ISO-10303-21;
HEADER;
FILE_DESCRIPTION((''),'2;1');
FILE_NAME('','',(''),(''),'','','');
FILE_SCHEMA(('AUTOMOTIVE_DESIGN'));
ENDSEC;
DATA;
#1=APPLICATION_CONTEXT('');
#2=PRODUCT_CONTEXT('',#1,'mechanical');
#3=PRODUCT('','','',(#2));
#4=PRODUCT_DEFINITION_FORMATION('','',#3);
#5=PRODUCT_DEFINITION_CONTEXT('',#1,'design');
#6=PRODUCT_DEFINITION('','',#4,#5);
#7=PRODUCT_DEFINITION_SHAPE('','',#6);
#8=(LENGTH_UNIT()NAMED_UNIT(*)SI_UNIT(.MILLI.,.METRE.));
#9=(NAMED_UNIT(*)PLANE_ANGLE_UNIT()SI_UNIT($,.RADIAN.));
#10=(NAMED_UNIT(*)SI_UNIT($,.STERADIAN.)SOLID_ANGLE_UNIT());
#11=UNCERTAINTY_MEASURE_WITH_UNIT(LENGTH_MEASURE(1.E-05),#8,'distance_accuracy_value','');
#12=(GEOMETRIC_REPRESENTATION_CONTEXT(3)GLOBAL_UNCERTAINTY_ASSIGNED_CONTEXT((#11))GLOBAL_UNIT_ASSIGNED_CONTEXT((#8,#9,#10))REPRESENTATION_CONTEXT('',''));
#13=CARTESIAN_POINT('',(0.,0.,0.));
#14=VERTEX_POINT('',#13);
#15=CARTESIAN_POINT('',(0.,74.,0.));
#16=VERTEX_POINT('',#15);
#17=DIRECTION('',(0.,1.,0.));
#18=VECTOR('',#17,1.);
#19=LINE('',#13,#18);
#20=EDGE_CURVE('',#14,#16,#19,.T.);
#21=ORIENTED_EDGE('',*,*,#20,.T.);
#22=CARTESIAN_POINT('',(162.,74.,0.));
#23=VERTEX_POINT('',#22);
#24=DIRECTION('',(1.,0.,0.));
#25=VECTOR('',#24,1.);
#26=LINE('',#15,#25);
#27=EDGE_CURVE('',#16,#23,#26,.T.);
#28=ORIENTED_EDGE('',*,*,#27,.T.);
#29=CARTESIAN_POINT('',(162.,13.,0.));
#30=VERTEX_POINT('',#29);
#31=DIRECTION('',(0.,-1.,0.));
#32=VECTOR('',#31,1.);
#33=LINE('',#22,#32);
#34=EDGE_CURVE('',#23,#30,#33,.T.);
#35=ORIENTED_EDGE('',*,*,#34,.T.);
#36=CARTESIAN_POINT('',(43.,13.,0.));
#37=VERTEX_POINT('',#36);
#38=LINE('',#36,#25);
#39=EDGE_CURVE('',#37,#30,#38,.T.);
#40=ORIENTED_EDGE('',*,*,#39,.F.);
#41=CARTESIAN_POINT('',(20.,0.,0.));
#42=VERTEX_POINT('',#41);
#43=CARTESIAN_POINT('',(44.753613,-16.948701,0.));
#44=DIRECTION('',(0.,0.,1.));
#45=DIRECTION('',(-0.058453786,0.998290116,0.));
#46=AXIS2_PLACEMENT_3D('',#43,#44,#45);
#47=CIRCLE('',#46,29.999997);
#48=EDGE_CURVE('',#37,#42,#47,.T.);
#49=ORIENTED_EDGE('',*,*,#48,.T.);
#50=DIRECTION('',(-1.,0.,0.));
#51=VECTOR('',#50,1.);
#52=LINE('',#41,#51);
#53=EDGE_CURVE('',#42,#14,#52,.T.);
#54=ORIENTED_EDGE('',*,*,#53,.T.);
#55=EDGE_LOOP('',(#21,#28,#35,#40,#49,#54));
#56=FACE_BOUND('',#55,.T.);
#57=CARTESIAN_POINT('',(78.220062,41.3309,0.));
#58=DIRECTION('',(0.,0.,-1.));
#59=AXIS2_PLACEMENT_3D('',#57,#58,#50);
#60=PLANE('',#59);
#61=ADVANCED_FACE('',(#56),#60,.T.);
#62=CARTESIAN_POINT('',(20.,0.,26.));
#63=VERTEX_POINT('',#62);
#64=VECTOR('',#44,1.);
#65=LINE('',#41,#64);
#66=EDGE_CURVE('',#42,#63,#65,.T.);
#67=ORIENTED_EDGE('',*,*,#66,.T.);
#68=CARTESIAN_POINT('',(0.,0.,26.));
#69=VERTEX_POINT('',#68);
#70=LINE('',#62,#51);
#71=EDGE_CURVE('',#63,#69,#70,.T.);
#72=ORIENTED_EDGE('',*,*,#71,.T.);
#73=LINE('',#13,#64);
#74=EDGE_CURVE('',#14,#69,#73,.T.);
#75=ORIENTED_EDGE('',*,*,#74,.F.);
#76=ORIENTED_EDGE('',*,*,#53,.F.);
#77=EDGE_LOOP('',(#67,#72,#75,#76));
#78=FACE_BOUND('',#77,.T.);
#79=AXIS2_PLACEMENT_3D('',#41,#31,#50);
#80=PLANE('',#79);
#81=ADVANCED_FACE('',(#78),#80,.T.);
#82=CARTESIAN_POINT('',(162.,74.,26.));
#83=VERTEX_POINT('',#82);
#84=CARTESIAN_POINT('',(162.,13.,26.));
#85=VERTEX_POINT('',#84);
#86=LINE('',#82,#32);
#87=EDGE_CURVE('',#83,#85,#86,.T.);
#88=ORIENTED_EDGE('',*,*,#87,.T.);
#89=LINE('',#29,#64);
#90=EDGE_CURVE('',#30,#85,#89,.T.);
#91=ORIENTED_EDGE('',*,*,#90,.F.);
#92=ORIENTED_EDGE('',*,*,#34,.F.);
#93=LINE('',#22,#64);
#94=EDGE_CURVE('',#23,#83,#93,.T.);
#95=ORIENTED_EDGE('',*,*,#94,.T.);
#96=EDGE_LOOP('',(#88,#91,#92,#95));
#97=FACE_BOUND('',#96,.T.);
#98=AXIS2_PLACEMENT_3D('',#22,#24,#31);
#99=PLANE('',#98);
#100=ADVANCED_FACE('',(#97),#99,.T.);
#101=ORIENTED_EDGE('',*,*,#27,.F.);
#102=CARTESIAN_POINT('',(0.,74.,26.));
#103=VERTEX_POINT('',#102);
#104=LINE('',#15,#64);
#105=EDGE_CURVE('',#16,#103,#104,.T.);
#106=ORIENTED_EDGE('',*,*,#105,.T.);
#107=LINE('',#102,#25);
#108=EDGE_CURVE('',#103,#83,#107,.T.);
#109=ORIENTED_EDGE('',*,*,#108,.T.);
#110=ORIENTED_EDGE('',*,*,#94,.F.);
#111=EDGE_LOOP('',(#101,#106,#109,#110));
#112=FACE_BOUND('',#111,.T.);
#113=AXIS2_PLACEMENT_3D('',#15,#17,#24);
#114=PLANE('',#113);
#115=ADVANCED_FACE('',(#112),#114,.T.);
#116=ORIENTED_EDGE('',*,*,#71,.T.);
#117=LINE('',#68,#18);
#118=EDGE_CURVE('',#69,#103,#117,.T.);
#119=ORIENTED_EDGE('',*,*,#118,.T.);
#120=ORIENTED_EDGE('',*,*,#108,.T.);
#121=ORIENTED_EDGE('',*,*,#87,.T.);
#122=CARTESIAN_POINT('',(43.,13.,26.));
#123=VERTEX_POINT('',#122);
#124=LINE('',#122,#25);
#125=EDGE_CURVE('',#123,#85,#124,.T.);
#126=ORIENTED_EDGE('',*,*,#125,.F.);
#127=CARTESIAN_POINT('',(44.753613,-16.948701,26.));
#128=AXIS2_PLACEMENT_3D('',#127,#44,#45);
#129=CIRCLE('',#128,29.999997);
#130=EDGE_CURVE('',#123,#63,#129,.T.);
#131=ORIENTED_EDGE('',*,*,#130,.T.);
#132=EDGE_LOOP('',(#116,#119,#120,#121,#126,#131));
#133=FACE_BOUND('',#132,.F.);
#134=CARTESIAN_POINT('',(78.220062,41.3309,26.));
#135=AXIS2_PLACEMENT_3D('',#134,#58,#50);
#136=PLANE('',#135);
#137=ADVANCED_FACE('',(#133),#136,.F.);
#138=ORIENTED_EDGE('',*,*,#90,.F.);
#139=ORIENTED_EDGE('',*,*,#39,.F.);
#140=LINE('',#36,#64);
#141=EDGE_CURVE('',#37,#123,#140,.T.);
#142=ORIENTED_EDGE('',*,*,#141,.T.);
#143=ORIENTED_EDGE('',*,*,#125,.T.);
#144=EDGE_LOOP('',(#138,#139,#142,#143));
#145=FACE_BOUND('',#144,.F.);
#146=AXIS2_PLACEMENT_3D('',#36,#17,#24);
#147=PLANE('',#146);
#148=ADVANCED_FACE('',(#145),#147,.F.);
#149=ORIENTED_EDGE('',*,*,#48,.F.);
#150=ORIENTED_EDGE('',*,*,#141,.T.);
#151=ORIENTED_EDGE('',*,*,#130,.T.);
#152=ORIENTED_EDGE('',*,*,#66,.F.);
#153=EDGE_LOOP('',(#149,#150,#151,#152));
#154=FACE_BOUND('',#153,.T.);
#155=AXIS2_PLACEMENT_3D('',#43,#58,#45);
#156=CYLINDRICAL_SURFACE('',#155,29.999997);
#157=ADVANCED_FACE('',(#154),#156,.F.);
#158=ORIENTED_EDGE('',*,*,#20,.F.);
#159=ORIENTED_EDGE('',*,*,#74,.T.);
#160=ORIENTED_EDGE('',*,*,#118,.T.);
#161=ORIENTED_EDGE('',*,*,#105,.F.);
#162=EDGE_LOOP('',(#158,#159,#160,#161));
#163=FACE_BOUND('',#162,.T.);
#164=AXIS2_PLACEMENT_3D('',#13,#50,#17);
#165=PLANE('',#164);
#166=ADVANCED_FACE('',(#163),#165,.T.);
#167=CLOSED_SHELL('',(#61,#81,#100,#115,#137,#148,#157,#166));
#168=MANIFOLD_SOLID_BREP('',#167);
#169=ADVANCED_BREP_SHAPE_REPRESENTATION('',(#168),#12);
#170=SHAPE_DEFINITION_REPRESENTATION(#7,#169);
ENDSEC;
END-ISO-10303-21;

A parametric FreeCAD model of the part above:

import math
import FreeCAD as App
import Part
import Sketcher

V = App.Vector

doc = App.newDocument("Part")
body = doc.addObject("PartDesign::Body", "Body")

# Sketch on XY plane
sketch1 = body.newObject("Sketcher::SketchObject", "Sketch")
sketch1.AttachmentSupport = (doc.getObject("XY_Plane"), [""])
sketch1.MapMode = "FlatFace"
sketch1.addGeometry([
    Part.LineSegment(V(162, 74, 0), V(0, 74, 0)),  # 0
    Part.LineSegment(V(0, 74, 0), V(0, 0, 0)),  # 1
    Part.LineSegment(V(0, 0, 0), V(20, 0, 0)),  # 2
    Part.ArcOfCircle(Part.Circle(V(45, -17, 0), V(0, 0, 1), 30), math.radians(93), math.radians(146)),  # 3
    Part.LineSegment(V(43, 13, 0), V(162, 13, 0)),  # 4
    Part.LineSegment(V(162, 13, 0), V(162, 74, 0)),  # 5
], False)
sketch1.addConstraint([
    Sketcher.Constraint("Coincident", 0, 2, 1, 1),
    Sketcher.Constraint("Coincident", 1, 2, 2, 1),
    Sketcher.Constraint("Coincident", 2, 2, 3, 2),
    Sketcher.Constraint("Coincident", 3, 1, 4, 1),
    Sketcher.Constraint("Coincident", 4, 2, 5, 1),
    Sketcher.Constraint("Coincident", 5, 2, 0, 1),
    Sketcher.Constraint("Horizontal", 0),
    Sketcher.Constraint("Vertical", 1),
    Sketcher.Constraint("Horizontal", 2),
    Sketcher.Constraint("Horizontal", 4),
    Sketcher.Constraint("Vertical", 5),
    Sketcher.Constraint("Coincident", 1, 2, -1, 1),
    Sketcher.Constraint("DistanceX", 0, 2, 0, 1, 162.0),
    Sketcher.Constraint("DistanceX", 2, 1, 2, 2, 20.0),
    Sketcher.Constraint("DistanceX", 4, 1, 4, 2, 119.0),
    Sketcher.Constraint("DistanceY", 1, 2, 1, 1, 74.0),
    Sketcher.Constraint("DistanceY", 5, 1, 5, 2, 61.0),
    Sketcher.Constraint("Radius", 3, 29.999997),
])
pad1 = body.newObject("PartDesign::Pad", "Pad")
pad1.Profile = sketch1
pad1.Length = 26

doc.recompute()
